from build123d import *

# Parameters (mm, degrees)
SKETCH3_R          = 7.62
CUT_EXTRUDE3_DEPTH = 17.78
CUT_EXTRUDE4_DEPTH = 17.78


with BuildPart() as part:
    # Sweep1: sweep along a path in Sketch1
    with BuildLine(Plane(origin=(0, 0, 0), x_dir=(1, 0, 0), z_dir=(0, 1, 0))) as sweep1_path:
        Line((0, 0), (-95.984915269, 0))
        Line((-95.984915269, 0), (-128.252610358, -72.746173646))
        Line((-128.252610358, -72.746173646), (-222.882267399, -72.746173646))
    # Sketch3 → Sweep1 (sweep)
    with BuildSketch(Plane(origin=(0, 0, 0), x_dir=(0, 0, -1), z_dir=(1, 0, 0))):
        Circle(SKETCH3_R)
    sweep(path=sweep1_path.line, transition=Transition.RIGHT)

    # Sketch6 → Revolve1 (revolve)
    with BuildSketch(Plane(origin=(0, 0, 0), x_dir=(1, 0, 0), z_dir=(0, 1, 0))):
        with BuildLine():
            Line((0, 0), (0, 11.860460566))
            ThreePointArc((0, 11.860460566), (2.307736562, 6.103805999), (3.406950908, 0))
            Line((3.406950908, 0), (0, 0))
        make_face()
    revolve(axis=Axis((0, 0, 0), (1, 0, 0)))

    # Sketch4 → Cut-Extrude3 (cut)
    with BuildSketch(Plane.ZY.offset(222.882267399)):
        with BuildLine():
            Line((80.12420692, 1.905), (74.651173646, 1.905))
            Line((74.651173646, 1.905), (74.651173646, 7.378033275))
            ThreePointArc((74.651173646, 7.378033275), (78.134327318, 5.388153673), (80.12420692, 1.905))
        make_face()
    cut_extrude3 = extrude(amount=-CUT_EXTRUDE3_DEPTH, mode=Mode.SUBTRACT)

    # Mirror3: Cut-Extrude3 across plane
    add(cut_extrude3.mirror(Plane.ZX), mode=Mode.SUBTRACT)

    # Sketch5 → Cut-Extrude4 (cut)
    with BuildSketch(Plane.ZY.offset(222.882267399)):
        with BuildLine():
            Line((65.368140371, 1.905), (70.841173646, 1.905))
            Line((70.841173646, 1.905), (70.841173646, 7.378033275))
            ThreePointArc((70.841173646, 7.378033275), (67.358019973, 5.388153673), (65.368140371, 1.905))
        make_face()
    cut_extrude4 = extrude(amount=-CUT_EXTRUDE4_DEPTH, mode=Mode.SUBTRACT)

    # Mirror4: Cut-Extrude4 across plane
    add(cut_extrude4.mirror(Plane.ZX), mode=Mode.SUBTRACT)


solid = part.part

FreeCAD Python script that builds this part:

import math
import FreeCAD as App
import Part
import Sketcher

V = App.Vector
Q = App.Units.Quantity

doc = App.newDocument("Part")
body = doc.addObject("PartDesign::Body", "Body")

# Sketch on YZ plane
sketch1 = body.newObject("Sketcher::SketchObject", "Sketch")
sketch1.AttachmentSupport = (doc.getObject("YZ_Plane"), [""])
sketch1.MapMode = "FlatFace"
sketch1.addGeometry(Part.Circle(V(0, 0, 0), V(0, 0, 1), 8), False)
sketch1.addConstraint(Sketcher.Constraint("Coincident", 0, 3, -1, 1))
sketch1.addConstraint(Sketcher.Constraint("Diameter", 0, Q("0.6 in")))

# Sketch on XZ plane
sketch2 = body.newObject("Sketcher::SketchObject", "Sketch001")
sketch2.AttachmentSupport = (doc.getObject("XZ_Plane"), [""])
sketch2.MapMode = "FlatFace"
sketch2.addGeometry(Part.LineSegment(V(0, 0, 0), V(-96, 0, 0)), False)
sketch2.addGeometry(Part.LineSegment(V(-96, 0, 0), V(-128, 73, 0)), False)
sketch2.addGeometry(Part.LineSegment(V(-128, 73, 0), V(-223, 73, 0)), False)
sketch2.addConstraint(Sketcher.Constraint("Coincident", 0, 2, 1, 1))
sketch2.addConstraint(Sketcher.Constraint("Coincident", 1, 2, 2, 1))
sketch2.addConstraint(Sketcher.Constraint("Horizontal", 0))
sketch2.addConstraint(Sketcher.Constraint("Horizontal", 2))
sketch2.addConstraint(Sketcher.Constraint("Coincident", 0, 1, -1, 1))
sketch2.addConstraint(Sketcher.Constraint("DistanceX", 0, 2, 0, 1, 95.984915))
sketch2.addConstraint(Sketcher.Constraint("DistanceX", 2, 2, 2, 1, 94.629657))
sketch2.addConstraint(Sketcher.Constraint("DistanceX", 1, 2, -1, 1, 128.25261))
sketch2.addConstraint(Sketcher.Constraint("Distance", 1, 79.581467))
doc.recompute()

additivepipe = body.newObject("PartDesign::AdditivePipe", "AdditivePipe")
additivepipe.Profile = sketch1
additivepipe.Spine = (sketch2, ["Edge1", "Edge2", "Edge3"])
additivepipe.Transition = "Right corner"

# Sketch on XZ plane
sketch3 = body.newObject("Sketcher::SketchObject", "Sketch002")
sketch3.AttachmentSupport = (doc.getObject("XZ_Plane"), [""])
sketch3.MapMode = "FlatFace"
sketch3.addGeometry(Part.LineSegment(V(0, -11.9, 0), V(0, 0, 0)), False)
sketch3.addGeometry(Part.LineSegment(V(0, 0, 0), V(3.4, 0, 0)), False)
sketch3.addGeometry(Part.ArcOfCircle(Part.Circle(V(-27.1, 2.3, 0), V(0, 0, 1), 30.6), math.radians(-28), math.radians(-4)), False)
sketch3.addConstraint(Sketcher.Constraint("Coincident", 0, 2, 1, 1))
sketch3.addConstraint(Sketcher.Constraint("Coincident", 1, 2, 2, 2))
sketch3.addConstraint(Sketcher.Constraint("Coincident", 2, 1, 0, 1))
sketch3.addConstraint(Sketcher.Constraint("Vertical", 0))
sketch3.addConstraint(Sketcher.Constraint("Horizontal", 1))
sketch3.addConstraint(Sketcher.Constraint("Coincident", 0, 2, -1, 1))
sketch3.addConstraint(Sketcher.Constraint("Radius", 2, 30.590821))
sketch3.addConstraint(Sketcher.Constraint("DistanceX", 1, 1, 1, 2, 3.406951))
sketch3.addConstraint(Sketcher.Constraint("DistanceY", 0, 1, 0, 2, 11.860461))
revolution = body.newObject("PartDesign::Revolution", "Revolution")
revolution.Profile = sketch3
revolution.ReferenceAxis = (sketch3, ["H_Axis"])
revolution.Angle = 360

# Sketch on YZ plane
sketch4 = body.newObject("Sketcher::SketchObject", "Sketch003")
sketch4.AttachmentSupport = (doc.getObject("YZ_Plane"), [""])
sketch4.MapMode = "FlatFace"
sketch4.AttachmentOffset = App.Placement(V(0, 0, -222.882267), App.Rotation())
sketch4.addGeometry(Part.LineSegment(V(2, 75, 0), V(2, 80, 0)), False)
sketch4.addGeometry(Part.ArcOfCircle(Part.Circle(V(0, 73, 0), V(0, 0, 1), 8), math.radians(14), math.radians(76)), False)
sketch4.addGeometry(Part.LineSegment(V(7, 75, 0), V(2, 75, 0)), False)
sketch4.addConstraint(Sketcher.Constraint("Coincident", 0, 2, 1, 2))
sketch4.addConstraint(Sketcher.Constraint("Coincident", 1, 1, 2, 1))
sketch4.addConstraint(Sketcher.Constraint("Coincident", 2, 2, 0, 1))
sketch4.addConstraint(Sketcher.Constraint("Vertical", 0))
sketch4.addConstraint(Sketcher.Constraint("Horizontal", 2))
sketch4.addConstraint(Sketcher.Constraint("PointOnObject", 1, 3, -2))
sketch4.addConstraint(Sketcher.Constraint("Equal", 2, 0))
sketch4.addConstraint(Sketcher.Constraint("Radius", 1, Q("0.3 in")))
sketch4.addConstraint(Sketcher.Constraint("DistanceX", -1, 1, 0, 2, Q("0.075 in")))
sketch4.addConstraint(Sketcher.Constraint("DistanceY", -1, 1, 1, 3, 72.746174))
pocket1 = body.newObject("PartDesign::Pocket", "Pocket")
pocket1.Profile = sketch4
pocket1.Length = Q("0.7 in")
pocket1.Reversed = True
doc.recompute()

mirrored = body.newObject("PartDesign::Mirrored", "Mirrored")
mirrored.Originals = [pocket1]
mirrored.MirrorPlane = (doc.getObject("XZ_Plane"), [""])
body.Tip = mirrored

# Sketch on YZ plane
sketch5 = body.newObject("Sketcher::SketchObject", "Sketch004")
sketch5.AttachmentSupport = (doc.getObject("YZ_Plane"), [""])
sketch5.MapMode = "FlatFace"
sketch5.AttachmentOffset = App.Placement(V(0, 0, -222.882267), App.Rotation())
sketch5.addGeometry(Part.LineSegment(V(2, 65, 0), V(2, 71, 0)), False)
sketch5.addGeometry(Part.LineSegment(V(2, 71, 0), V(7, 71, 0)), False)
sketch5.addGeometry(Part.ArcOfCircle(Part.Circle(V(0, 73, 0), V(0, 0, 1), 8), math.radians(-76), math.radians(-14)), False)
sketch5.addConstraint(Sketcher.Constraint("Coincident", 0, 2, 1, 1))
sketch5.addConstraint(Sketcher.Constraint("Coincident", 1, 2, 2, 2))
sketch5.addConstraint(Sketcher.Constraint("Coincident", 2, 1, 0, 1))
sketch5.addConstraint(Sketcher.Constraint("Vertical", 0))
sketch5.addConstraint(Sketcher.Constraint("Horizontal", 1))
sketch5.addConstraint(Sketcher.Constraint("PointOnObject", 2, 3, -2))
sketch5.addConstraint(Sketcher.Constraint("Equal", 1, 0))
sketch5.addConstraint(Sketcher.Constraint("Radius", 2, Q("0.3 in")))
sketch5.addConstraint(Sketcher.Constraint("DistanceX", -1, 1, 0, 2, Q("0.075 in")))
sketch5.addConstraint(Sketcher.Constraint("DistanceY", -1, 1, 2, 1, 65.36814))
pocket2 = body.newObject("PartDesign::Pocket", "Pocket001")
pocket2.Profile = sketch5
pocket2.Length = Q("0.7 in")
pocket2.Reversed = True
doc.recompute()

mirrored2 = body.newObject("PartDesign::Mirrored", "Mirrored001")
mirrored2.Originals = [pocket2]
mirrored2.MirrorPlane = (doc.getObject("XZ_Plane"), [""])
body.Tip = mirrored2

doc.recompute()
